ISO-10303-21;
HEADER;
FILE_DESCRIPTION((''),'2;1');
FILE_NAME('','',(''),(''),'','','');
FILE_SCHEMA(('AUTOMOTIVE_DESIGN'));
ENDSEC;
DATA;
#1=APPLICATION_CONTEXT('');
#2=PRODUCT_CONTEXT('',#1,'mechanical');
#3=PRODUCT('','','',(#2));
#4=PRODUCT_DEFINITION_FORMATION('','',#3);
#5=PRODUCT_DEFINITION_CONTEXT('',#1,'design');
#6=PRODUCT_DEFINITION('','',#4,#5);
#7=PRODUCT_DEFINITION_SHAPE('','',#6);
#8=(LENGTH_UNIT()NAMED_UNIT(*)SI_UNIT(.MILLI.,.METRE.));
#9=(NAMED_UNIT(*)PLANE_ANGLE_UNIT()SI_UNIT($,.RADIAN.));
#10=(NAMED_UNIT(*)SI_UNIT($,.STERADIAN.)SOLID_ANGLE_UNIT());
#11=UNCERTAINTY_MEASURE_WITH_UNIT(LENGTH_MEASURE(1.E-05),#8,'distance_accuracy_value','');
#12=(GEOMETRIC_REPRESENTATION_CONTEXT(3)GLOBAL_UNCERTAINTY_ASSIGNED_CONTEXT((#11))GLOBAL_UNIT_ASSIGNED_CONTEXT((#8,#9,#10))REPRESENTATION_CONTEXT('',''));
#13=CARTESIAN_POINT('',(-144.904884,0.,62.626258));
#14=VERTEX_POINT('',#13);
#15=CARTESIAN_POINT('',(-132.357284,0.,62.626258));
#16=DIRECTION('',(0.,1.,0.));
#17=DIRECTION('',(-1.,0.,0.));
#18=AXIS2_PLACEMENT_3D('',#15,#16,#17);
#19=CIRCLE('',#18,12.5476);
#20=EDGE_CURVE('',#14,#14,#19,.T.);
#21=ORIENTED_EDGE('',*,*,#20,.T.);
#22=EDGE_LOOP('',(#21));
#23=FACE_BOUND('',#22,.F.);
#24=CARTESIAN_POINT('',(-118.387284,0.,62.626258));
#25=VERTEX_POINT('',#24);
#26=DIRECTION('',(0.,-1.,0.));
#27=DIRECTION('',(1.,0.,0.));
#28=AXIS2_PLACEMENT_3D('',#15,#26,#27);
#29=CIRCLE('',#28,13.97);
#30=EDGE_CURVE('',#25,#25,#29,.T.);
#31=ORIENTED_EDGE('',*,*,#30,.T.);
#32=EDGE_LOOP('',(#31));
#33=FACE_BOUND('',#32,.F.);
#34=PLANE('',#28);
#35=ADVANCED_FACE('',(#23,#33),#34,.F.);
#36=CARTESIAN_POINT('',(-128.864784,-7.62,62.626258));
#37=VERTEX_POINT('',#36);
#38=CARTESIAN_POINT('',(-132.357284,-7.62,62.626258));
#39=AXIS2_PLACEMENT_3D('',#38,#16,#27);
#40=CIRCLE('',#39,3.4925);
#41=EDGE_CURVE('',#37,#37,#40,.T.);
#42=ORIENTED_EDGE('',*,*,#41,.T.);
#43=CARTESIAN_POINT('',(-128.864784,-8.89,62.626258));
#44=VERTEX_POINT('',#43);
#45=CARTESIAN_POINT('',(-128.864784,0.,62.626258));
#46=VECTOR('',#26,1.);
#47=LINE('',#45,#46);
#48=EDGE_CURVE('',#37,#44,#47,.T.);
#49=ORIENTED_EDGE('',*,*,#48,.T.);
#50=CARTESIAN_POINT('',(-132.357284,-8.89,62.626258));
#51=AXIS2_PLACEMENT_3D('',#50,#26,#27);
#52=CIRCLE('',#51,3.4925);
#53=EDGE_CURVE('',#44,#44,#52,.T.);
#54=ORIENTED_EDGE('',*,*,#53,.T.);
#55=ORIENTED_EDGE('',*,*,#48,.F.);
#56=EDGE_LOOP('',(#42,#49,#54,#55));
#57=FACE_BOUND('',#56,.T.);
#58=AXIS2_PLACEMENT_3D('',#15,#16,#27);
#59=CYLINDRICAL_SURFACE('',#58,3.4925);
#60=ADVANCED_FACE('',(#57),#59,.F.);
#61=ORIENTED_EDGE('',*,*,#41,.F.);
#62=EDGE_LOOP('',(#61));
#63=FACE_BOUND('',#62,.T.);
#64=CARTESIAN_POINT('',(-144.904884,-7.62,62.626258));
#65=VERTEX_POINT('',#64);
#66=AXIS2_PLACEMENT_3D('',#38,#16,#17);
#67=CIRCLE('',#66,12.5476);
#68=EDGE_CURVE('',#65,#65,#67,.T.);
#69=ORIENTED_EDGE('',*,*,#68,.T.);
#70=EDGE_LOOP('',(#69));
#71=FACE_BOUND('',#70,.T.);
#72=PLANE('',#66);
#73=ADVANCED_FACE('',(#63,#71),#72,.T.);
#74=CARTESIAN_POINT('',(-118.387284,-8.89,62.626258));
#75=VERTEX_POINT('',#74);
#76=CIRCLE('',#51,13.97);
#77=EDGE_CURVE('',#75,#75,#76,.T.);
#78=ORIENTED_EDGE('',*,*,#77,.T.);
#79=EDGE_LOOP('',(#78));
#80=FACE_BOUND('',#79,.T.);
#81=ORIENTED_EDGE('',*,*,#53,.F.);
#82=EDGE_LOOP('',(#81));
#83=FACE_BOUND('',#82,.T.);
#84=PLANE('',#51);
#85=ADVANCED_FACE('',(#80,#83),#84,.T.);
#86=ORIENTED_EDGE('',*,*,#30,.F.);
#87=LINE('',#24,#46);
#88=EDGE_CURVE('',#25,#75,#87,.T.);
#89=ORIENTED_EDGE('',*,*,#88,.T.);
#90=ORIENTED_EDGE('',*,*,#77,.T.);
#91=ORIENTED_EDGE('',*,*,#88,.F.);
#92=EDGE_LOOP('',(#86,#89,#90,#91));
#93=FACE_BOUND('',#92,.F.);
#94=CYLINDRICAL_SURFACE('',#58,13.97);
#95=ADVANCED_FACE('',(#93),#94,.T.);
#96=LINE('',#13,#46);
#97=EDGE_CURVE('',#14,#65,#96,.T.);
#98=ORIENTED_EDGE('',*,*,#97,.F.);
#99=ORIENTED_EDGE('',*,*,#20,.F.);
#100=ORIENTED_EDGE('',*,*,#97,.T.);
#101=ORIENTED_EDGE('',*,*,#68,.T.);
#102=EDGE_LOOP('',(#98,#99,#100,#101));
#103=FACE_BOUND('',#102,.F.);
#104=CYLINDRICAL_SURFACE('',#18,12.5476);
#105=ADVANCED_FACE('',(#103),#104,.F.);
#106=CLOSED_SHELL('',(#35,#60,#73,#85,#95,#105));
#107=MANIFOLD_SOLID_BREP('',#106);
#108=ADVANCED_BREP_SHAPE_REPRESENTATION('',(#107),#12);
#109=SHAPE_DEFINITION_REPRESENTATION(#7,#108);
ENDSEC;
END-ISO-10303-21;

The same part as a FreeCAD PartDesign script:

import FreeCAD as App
import Part
import Sketcher
from FreeCAD import Vector
Q = App.Units.Quantity

doc = App.newDocument("Part")
body = doc.addObject("PartDesign::Body", "Body")

# Sketch on XZ plane
sketch1 = doc.addObject("Sketcher::SketchObject", "Sketch")
body.addObject(sketch1)
sketch1.AttachmentSupport = (doc.XZ_Plane, [""])
sketch1.MapMode = "FlatFace"
sketch1.addGeometry(Part.Circle(Vector(-132.4, 62.6, 0), Vector(0, 0, 1), 14), False)
sketch1.addGeometry(Part.Circle(Vector(-132.4, 62.6, 0), Vector(0, 0, 1), 3.5), False)
sketch1.addConstraint(Sketcher.Constraint("Coincident", 1, 3, 0, 3))
sketch1.addConstraint(Sketcher.Constraint("Diameter", 0, Q("1.1 in")))
sketch1.addConstraint(Sketcher.Constraint("Diameter", 1, Q("0.275 in")))
sketch1.addConstraint(Sketcher.Constraint("DistanceX", 0, 3, -1, 1, Q("132.357284 mm")))
sketch1.addConstraint(Sketcher.Constraint("DistanceY", -1, 1, 0, 3, Q("62.626258 mm")))
pad1 = doc.addObject("PartDesign::Pad", "Pad")
body.addObject(pad1)
pad1.Profile = sketch1
pad1.Length = Q("0.35 in")

# Sketch on XZ plane
sketch2 = doc.addObject("Sketcher::SketchObject", "Sketch001")
body.addObject(sketch2)
sketch2.AttachmentSupport = (doc.XZ_Plane, [""])
sketch2.MapMode = "FlatFace"
sketch2.addGeometry(Part.Circle(Vector(-132, 63, 0), Vector(0, 0, 1), 13), False)
sketch2.addConstraint(Sketcher.Constraint("Diameter", 0, Q("0.988 in")))
sketch2.addConstraint(Sketcher.Constraint("DistanceX", 0, 3, -1, 1, Q("132.357284 mm")))
sketch2.addConstraint(Sketcher.Constraint("DistanceY", -1, 1, 0, 3, Q("62.626258 mm")))
pocket1 = doc.addObject("PartDesign::Pocket", "Pocket")
body.addObject(pocket1)
pocket1.Profile = sketch2
pocket1.Length = Q("0.3 in")
pocket1.Reversed = True

doc.recompute()
